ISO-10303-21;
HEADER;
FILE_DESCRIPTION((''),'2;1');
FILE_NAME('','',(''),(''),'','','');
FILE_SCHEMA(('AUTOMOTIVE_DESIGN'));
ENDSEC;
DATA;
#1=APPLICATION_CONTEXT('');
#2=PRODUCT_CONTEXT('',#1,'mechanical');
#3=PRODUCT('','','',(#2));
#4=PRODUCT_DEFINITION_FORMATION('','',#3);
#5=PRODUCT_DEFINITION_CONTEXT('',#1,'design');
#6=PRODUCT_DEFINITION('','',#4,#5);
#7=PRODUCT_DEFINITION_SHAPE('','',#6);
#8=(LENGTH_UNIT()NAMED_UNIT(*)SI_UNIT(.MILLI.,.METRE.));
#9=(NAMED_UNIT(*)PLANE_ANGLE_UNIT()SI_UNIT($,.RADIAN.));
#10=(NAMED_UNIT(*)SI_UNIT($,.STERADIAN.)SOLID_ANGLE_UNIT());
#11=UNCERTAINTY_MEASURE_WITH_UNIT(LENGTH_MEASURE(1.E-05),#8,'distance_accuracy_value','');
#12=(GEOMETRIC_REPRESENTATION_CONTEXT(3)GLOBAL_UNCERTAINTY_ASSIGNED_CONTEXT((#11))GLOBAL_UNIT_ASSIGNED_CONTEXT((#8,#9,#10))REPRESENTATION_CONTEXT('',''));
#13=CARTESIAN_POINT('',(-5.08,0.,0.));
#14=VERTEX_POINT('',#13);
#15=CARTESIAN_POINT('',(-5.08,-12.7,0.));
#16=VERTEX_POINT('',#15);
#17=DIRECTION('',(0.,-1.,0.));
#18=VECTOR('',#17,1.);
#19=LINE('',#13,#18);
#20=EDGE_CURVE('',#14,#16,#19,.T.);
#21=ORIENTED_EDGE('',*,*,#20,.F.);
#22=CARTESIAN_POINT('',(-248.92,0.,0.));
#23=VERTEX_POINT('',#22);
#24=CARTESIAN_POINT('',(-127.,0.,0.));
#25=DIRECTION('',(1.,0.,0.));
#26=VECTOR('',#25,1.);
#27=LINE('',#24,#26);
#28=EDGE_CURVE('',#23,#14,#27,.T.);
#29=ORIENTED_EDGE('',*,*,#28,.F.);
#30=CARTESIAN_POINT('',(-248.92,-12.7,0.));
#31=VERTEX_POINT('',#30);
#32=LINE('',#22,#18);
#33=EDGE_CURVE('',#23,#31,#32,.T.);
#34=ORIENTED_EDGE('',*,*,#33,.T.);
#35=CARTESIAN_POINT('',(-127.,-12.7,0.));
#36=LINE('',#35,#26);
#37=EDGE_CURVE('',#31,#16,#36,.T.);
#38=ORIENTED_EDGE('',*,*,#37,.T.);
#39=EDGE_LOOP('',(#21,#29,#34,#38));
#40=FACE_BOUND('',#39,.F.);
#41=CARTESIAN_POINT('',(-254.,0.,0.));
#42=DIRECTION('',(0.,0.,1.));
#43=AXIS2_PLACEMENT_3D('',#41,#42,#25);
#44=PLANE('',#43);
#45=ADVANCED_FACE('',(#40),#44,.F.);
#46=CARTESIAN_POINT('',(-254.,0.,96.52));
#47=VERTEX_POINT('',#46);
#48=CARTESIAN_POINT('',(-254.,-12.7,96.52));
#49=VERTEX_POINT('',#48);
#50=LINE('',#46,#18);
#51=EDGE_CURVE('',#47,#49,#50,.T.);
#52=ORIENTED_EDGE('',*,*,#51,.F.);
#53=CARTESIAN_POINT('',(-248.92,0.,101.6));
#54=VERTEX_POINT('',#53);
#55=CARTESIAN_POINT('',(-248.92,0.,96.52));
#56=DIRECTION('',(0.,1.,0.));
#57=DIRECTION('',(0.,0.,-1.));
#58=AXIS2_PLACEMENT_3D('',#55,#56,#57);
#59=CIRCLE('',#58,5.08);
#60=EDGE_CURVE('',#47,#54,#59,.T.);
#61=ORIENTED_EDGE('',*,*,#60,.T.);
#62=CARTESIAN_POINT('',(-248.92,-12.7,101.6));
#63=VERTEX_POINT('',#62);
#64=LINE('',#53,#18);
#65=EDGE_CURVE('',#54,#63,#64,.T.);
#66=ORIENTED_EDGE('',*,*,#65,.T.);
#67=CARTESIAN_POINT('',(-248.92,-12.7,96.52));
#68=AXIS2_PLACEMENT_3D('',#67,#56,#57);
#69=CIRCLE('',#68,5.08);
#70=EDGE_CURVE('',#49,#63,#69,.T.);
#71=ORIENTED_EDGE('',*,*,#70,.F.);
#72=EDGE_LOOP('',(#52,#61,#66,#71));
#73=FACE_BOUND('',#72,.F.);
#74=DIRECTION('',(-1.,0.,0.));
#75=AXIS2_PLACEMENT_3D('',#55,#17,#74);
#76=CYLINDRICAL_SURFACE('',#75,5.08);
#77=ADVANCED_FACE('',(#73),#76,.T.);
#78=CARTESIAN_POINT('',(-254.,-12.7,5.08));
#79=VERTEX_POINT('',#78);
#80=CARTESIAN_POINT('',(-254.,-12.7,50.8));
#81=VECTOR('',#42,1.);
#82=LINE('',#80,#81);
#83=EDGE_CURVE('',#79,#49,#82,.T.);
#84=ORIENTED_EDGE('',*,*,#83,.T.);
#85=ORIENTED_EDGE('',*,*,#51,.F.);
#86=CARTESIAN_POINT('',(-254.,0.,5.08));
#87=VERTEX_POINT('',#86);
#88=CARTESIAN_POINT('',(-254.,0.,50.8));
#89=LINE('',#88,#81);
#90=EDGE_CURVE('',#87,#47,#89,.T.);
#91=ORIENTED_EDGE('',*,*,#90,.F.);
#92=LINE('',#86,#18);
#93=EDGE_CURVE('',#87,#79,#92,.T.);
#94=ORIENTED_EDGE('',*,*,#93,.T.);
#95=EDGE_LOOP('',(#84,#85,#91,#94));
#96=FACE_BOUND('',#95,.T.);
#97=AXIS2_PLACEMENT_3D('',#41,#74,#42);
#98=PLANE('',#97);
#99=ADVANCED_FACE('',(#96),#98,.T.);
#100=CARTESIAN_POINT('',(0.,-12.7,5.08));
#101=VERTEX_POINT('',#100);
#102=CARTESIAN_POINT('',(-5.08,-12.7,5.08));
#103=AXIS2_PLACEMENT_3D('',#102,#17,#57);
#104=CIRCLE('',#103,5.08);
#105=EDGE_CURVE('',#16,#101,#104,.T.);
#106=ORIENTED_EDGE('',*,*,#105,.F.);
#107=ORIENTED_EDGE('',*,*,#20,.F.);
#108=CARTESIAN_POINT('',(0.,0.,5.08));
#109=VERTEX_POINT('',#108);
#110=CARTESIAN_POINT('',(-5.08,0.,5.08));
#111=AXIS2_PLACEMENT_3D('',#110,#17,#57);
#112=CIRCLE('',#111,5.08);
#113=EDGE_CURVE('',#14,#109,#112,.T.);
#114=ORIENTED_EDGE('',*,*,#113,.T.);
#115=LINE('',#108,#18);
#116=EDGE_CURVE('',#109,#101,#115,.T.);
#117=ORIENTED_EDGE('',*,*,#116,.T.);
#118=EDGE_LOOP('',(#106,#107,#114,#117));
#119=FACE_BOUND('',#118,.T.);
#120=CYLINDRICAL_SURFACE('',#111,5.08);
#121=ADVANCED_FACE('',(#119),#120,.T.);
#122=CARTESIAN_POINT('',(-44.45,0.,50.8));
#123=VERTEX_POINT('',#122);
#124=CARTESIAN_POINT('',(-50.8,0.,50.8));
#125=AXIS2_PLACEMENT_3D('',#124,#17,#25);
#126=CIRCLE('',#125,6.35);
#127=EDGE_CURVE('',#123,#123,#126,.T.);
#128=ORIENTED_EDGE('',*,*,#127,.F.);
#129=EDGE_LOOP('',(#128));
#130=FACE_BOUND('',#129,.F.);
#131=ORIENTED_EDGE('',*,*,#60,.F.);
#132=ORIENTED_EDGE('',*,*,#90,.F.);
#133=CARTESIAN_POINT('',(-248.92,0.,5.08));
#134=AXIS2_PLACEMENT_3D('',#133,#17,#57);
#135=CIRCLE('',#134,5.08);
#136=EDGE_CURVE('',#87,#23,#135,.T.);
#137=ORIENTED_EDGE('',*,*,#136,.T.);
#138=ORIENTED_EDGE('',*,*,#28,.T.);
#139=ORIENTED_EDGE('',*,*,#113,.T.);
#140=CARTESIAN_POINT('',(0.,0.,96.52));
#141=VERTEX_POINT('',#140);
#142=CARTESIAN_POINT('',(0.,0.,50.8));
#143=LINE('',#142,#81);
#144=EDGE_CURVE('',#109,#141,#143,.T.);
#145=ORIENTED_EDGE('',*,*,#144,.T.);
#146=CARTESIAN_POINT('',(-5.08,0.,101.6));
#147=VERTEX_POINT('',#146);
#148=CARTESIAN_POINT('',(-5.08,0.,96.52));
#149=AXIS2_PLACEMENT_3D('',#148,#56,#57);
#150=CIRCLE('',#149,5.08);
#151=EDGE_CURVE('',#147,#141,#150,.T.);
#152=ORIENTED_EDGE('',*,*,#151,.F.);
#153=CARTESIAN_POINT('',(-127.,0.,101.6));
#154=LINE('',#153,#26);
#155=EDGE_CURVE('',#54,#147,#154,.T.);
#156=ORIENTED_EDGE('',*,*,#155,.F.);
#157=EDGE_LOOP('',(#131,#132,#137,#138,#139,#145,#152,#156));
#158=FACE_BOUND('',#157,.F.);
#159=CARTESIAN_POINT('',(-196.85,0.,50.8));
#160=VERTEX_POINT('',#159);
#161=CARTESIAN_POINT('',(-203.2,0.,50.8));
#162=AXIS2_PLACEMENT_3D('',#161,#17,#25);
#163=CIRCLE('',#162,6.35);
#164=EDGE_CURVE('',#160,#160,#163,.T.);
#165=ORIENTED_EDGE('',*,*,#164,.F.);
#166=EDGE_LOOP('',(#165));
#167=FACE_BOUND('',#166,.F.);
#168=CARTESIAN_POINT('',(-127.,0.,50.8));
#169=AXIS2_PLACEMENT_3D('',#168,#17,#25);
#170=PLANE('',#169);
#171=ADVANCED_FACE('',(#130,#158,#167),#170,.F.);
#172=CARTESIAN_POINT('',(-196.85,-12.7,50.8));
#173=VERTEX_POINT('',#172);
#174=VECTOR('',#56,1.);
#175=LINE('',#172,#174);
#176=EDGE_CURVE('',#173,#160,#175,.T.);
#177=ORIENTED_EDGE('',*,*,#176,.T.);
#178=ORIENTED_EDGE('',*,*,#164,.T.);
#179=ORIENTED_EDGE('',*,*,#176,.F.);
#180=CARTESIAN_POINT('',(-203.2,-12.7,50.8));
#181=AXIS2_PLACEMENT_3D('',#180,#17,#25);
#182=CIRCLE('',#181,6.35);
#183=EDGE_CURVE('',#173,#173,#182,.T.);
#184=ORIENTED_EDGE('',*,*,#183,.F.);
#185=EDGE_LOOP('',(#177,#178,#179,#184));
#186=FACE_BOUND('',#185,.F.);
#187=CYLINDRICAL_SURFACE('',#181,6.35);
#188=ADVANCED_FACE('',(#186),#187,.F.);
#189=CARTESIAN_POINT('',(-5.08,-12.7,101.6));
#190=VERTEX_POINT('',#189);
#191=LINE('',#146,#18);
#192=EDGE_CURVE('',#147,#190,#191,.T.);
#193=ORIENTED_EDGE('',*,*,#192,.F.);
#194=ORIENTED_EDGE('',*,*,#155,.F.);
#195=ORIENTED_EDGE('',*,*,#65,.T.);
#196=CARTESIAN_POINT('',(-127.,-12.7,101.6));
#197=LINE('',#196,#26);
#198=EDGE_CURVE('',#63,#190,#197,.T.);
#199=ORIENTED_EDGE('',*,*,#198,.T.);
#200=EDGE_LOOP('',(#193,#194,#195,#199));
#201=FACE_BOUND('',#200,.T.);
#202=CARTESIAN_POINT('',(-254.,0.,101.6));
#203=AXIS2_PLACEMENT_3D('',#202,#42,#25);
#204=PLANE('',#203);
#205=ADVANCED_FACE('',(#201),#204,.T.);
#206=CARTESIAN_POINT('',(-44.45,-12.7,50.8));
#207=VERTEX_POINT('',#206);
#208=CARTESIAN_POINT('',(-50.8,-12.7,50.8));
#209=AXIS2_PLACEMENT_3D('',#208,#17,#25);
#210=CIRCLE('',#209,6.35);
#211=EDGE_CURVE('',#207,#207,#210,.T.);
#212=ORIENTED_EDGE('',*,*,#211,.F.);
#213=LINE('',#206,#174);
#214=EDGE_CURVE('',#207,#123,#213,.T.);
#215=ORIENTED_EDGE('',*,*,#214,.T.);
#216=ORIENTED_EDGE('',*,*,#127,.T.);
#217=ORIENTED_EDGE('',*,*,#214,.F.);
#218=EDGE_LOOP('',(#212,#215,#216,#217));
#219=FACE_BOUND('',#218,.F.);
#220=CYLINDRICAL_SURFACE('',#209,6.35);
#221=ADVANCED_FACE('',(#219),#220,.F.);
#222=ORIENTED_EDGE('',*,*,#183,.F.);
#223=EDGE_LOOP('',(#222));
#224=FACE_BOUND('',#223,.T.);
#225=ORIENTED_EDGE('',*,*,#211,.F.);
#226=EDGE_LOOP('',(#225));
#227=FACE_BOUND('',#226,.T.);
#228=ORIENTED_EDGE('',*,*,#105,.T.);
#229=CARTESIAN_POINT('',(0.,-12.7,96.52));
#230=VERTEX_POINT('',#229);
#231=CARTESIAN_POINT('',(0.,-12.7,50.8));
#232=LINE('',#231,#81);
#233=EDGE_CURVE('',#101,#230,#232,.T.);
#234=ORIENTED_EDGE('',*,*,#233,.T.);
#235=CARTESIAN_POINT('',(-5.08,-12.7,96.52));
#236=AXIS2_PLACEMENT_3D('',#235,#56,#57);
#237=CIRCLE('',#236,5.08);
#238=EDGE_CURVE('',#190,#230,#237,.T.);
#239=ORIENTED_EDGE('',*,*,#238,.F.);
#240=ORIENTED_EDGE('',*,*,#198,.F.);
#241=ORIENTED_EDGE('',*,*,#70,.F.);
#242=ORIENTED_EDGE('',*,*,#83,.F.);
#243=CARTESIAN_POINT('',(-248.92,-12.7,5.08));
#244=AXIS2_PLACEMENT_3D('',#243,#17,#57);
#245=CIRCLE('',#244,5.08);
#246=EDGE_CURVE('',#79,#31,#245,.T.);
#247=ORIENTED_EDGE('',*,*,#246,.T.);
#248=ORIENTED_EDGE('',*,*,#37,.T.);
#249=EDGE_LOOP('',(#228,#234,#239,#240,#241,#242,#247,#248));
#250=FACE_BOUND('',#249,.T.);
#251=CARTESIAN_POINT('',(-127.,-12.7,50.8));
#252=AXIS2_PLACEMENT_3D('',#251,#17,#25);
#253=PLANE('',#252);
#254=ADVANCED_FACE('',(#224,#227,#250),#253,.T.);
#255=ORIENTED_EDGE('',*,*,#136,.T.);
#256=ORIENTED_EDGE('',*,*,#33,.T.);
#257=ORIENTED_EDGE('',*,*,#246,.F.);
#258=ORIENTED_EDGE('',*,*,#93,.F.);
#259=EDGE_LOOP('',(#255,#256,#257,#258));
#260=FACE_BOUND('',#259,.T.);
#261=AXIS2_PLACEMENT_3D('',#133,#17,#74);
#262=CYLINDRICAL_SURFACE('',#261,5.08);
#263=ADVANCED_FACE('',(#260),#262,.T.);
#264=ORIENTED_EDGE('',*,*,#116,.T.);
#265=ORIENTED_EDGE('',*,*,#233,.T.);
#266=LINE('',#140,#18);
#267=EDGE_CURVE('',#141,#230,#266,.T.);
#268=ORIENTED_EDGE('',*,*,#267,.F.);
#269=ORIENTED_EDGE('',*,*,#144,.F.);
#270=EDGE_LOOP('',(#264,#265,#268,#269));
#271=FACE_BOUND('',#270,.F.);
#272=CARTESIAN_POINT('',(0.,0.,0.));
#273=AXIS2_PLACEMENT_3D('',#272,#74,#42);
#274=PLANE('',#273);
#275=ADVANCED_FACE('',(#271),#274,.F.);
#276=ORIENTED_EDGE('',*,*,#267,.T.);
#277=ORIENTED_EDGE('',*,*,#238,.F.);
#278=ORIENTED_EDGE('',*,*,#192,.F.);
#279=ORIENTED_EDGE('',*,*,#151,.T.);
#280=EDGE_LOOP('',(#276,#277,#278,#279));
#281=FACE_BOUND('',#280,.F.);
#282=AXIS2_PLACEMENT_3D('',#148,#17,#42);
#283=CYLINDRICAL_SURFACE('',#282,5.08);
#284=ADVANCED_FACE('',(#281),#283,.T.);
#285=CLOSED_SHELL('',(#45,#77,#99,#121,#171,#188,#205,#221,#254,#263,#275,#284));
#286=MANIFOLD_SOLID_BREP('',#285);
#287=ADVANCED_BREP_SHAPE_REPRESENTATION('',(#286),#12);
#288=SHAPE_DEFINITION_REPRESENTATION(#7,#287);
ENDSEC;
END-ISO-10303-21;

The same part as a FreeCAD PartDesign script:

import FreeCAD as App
import Part
import Sketcher
from FreeCAD import Vector
Q = App.Units.Quantity


def edges_at(feature, points):
    """Names of the edges that pass closest to the given points."""
    edges = feature.Shape.Edges
    near = lambda p: min(range(len(edges)), key=lambda i: edges[i].distToShape(Part.Vertex(*p))[0])
    return sorted({f"Edge{near(p) + 1}" for p in points})

doc = App.newDocument("Part")
body = doc.addObject("PartDesign::Body", "Body")

# Sketch on XZ plane
sketch1 = body.newObject("Sketcher::SketchObject", "Sketch")
sketch1.AttachmentSupport = (doc.getObject("XZ_Plane"), [""])
sketch1.MapMode = "FlatFace"
sketch1.addGeometry([
    Part.LineSegment(Vector(-254, 102, 0), Vector(-254, 0, 0)),
    Part.LineSegment(Vector(-254, 0, 0), Vector(0, 0, 0)),
    Part.LineSegment(Vector(0, 0, 0), Vector(0, 102, 0)),
    Part.LineSegment(Vector(0, 102, 0), Vector(-254, 102, 0)),
], False)
sketch1.addConstraint([
    Sketcher.Constraint("Coincident", 0, 2, 1, 1),
    Sketcher.Constraint("Coincident", 1, 2, 2, 1),
    Sketcher.Constraint("Coincident", 2, 2, 3, 1),
    Sketcher.Constraint("Coincident", 3, 2, 0, 1),
    Sketcher.Constraint("Vertical", 0),
    Sketcher.Constraint("Horizontal", 1),
    Sketcher.Constraint("Vertical", 2),
    Sketcher.Constraint("Horizontal", 3),
    Sketcher.Constraint("Coincident", 1, 2, -1, 1),
    Sketcher.Constraint("DistanceX", 1, 1, 1, 2, Q("10 in")),
    Sketcher.Constraint("DistanceY", 0, 2, 0, 1, Q("4 in")),
])
pad1 = body.newObject("PartDesign::Pad", "Pad")
pad1.Profile = sketch1
pad1.Length = Q("0.5 in")

# Sketch on XZ plane
sketch2 = body.newObject("Sketcher::SketchObject", "Sketch001")
sketch2.AttachmentSupport = (doc.getObject("XZ_Plane"), [""])
sketch2.MapMode = "FlatFace"
sketch2.AttachmentOffset = App.Placement(Vector(0, 0, 0.5 * 25.4), App.Rotation())
sketch2.addGeometry([
    Part.Circle(Vector(-203, 51, 0), Vector(0, 0, 1), 6),
    Part.Circle(Vector(-51, 51, 0), Vector(0, 0, 1), 6),
], False)
sketch2.addConstraint([
    Sketcher.Constraint("Equal", 0, 1),
    Sketcher.Constraint("Horizontal", 0, 3, 1, 3),
    Sketcher.Constraint("Diameter", 0, Q("0.5 in")),
    Sketcher.Constraint("DistanceX", 0, 3, -1, 1, Q("8 in")),
    Sketcher.Constraint("DistanceY", -1, 1, 0, 3, Q("2 in")),
    Sketcher.Constraint("DistanceX", 1, 3, -1, 1, Q("2 in")),
])
pocket1 = body.newObject("PartDesign::Pocket", "Pocket")
pocket1.Profile = sketch2
pocket1.Type = "ThroughAll"
doc.recompute()

fillet = body.newObject("PartDesign::Fillet", "Fillet")
fillet.Base = (pocket1, edges_at(pocket1, [
    (-254, -6.35, 0),
    (-254, -6.35, 101.6),
    (0, -6.35, 0),
    (0, -6.35, 101.6),
]))
fillet.Radius = Q("0.2 in")

doc.recompute()
